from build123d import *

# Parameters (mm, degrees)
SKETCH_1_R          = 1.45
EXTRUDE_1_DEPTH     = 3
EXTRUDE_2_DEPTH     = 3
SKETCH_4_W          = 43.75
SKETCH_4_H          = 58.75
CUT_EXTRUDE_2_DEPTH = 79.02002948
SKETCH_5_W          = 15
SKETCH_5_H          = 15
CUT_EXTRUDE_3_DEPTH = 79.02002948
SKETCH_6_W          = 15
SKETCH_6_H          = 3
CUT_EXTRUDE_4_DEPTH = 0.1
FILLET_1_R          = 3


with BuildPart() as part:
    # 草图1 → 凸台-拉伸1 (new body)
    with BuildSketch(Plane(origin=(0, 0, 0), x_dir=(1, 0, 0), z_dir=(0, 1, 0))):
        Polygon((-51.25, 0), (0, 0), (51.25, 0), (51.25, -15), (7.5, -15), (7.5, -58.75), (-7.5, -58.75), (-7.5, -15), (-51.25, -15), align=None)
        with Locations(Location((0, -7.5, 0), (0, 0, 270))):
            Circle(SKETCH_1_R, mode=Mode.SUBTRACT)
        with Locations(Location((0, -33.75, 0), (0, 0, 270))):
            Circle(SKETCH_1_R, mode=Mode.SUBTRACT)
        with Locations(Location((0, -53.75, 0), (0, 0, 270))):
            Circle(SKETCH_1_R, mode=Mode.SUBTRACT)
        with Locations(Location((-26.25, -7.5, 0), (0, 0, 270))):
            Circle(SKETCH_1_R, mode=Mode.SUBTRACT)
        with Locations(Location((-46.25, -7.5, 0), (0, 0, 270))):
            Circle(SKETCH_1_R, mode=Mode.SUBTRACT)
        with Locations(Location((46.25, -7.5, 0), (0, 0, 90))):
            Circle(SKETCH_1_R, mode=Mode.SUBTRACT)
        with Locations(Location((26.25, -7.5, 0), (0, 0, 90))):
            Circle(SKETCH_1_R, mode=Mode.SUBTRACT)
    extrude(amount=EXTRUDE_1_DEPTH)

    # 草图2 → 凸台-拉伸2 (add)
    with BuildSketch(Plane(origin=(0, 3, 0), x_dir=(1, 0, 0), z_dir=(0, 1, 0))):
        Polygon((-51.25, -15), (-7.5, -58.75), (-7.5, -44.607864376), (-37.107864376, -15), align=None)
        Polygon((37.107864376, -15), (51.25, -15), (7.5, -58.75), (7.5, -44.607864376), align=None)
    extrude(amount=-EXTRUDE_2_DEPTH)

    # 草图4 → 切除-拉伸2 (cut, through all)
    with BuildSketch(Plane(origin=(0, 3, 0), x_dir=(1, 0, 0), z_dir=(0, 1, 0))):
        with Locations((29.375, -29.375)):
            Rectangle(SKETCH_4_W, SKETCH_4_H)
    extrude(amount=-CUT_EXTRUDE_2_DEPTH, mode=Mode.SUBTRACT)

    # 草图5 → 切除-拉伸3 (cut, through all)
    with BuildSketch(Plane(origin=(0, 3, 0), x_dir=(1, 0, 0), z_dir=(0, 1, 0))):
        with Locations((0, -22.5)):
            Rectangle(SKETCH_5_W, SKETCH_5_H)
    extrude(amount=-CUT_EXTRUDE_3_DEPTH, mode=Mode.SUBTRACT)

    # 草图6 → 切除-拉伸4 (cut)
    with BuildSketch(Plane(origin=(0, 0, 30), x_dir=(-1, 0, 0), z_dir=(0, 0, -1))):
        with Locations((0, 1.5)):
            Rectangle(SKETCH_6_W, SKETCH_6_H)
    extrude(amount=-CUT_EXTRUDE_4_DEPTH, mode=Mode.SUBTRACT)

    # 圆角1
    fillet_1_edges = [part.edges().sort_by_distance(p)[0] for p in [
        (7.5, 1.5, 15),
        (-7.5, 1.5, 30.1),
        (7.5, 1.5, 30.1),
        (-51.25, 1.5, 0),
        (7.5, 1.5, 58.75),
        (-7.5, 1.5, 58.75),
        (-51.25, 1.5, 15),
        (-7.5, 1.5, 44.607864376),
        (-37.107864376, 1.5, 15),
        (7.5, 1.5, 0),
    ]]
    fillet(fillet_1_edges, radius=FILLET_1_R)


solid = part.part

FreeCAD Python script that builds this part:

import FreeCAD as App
import Part
import Sketcher

V = App.Vector
Q = App.Units.Quantity


def edges_at(feature, points):
    """Names of the edges that pass closest to the given points."""
    edges = feature.Shape.Edges
    near = lambda p: min(range(len(edges)), key=lambda i: edges[i].distToShape(Part.Vertex(*p))[0])
    return sorted({f"Edge{near(p) + 1}" for p in points})


def add_polygon(sketch, points):
    """Adds a closed chain of lines whose ends are joined by coincident constraints."""
    first, n = sketch.GeometryCount, len(points)
    for a, b in zip(points, points[1:] + points[:1]):
        sketch.addGeometry(Part.LineSegment(App.Vector(*a, 0), App.Vector(*b, 0)), False)
    for i in range(n):
        sketch.addConstraint(Sketcher.Constraint("Coincident", first + i, 2, first + (i + 1) % n, 1))

doc = App.newDocument("Part")
body = doc.addObject("PartDesign::Body", "Body")

# Sketch on XZ plane
sketch1 = body.newObject("Sketcher::SketchObject", "Sketch")
sketch1.AttachmentSupport = (doc.getObject("XZ_Plane"), [""])
sketch1.MapMode = "FlatFace"
add_polygon(sketch1, [(51.2, 0), (-51.2, 0), (-51.2, 15), (-7.5, 15), (-7.5, 58.8), (7.5, 58.8), (7.5, 15), (51.2, 15)])  # lines 0-7
sketch1.addGeometry(Part.Circle(V(0, 53.8, 0), V(0, 0, 1), 1.4), False)  # 8
sketch1.addGeometry(Part.Circle(V(0, 33.8, 0), V(0, 0, 1), 1.4), False)  # 9
sketch1.addGeometry(Part.Circle(V(46.2, 7.5, 0), V(0, 0, 1), 1.4), False)  # 10
sketch1.addGeometry(Part.Circle(V(26.2, 7.5, 0), V(0, 0, 1), 1.4), False)  # 11
sketch1.addGeometry(Part.Circle(V(0, 7.5, 0), V(0, 0, 1), 1.4), False)  # 12
sketch1.addGeometry(Part.Circle(V(-26.2, 7.5, 0), V(0, 0, 1), 1.4), False)  # 13
sketch1.addGeometry(Part.Circle(V(-46.2, 7.5, 0), V(0, 0, 1), 1.4), False)  # 14
sketch1.addConstraint(Sketcher.Constraint("Horizontal", 0))
sketch1.addConstraint(Sketcher.Constraint("Vertical", 1))
sketch1.addConstraint(Sketcher.Constraint("Horizontal", 2))
sketch1.addConstraint(Sketcher.Constraint("Vertical", 3))
sketch1.addConstraint(Sketcher.Constraint("Horizontal", 4))
sketch1.addConstraint(Sketcher.Constraint("Vertical", 5))
sketch1.addConstraint(Sketcher.Constraint("Horizontal", 6))
sketch1.addConstraint(Sketcher.Constraint("Vertical", 7))
sketch1.addConstraint(Sketcher.Constraint("Equal", 8, 9))
sketch1.addConstraint(Sketcher.Constraint("Equal", 9, 10))
sketch1.addConstraint(Sketcher.Constraint("Equal", 10, 11))
sketch1.addConstraint(Sketcher.Constraint("Equal", 11, 12))
sketch1.addConstraint(Sketcher.Constraint("Equal", 12, 13))
sketch1.addConstraint(Sketcher.Constraint("Equal", 13, 14))
sketch1.addConstraint(Sketcher.Constraint("Symmetric", 0, 2, 7, 2, -1, 1))
sketch1.addConstraint(Sketcher.Constraint("Symmetric", 11, 3, 13, 3, -2))
sketch1.addConstraint(Sketcher.Constraint("Symmetric", 10, 3, 14, 3, -2))
sketch1.addConstraint(Sketcher.Constraint("Symmetric", 2, 2, 5, 2, -2))
sketch1.addConstraint(Sketcher.Constraint("PointOnObject", 8, 3, -2))
sketch1.addConstraint(Sketcher.Constraint("PointOnObject", 9, 3, -2))
sketch1.addConstraint(Sketcher.Constraint("PointOnObject", 12, 3, -2))
sketch1.addConstraint(Sketcher.Constraint("Horizontal", 10, 3, 11, 3))
sketch1.addConstraint(Sketcher.Constraint("Horizontal", 11, 3, 12, 3))
sketch1.addConstraint(Sketcher.Constraint("Equal", 4, 1))
sketch1.addConstraint(Sketcher.Constraint("Equal", 6, 3))
sketch1.addConstraint(Sketcher.Constraint("Diameter", 8, Q("2.9 mm")))
sketch1.addConstraint(Sketcher.Constraint("DistanceX", 4, 1, 4, 2, Q("15 mm")))
sketch1.addConstraint(Sketcher.Constraint("DistanceX", 0, 2, 0, 1, Q("102.5 mm")))
sketch1.addConstraint(Sketcher.Constraint("DistanceY", 9, 3, 8, 3, Q("20 mm")))
sketch1.addConstraint(Sketcher.Constraint("DistanceX", 11, 3, 10, 3, Q("20 mm")))
sketch1.addConstraint(Sketcher.Constraint("DistanceX", 0, 2, 14, 3, Q("5 mm")))
sketch1.addConstraint(Sketcher.Constraint("DistanceY", 8, 3, 3, 2, Q("5 mm")))
sketch1.addConstraint(Sketcher.Constraint("DistanceY", -1, 1, 10, 3, Q("7.5 mm")))
pad1 = body.newObject("PartDesign::Pad", "Pad")
pad1.Profile = sketch1
pad1.Length = 3
pad1.Reversed = True

# Sketch on XZ plane
sketch2 = body.newObject("Sketcher::SketchObject", "Sketch001")
sketch2.AttachmentSupport = (doc.getObject("XZ_Plane"), [""])
sketch2.MapMode = "FlatFace"
sketch2.AttachmentOffset = App.Placement(V(0, 0, -3), App.Rotation())
add_polygon(sketch2, [(-51, 15), (-8, 59), (-8, 45), (-37, 15)])  # lines 0-3
add_polygon(sketch2, [(51, 15), (37, 15), (8, 45), (8, 59)])  # lines 4-7
sketch2.addConstraint(Sketcher.Constraint("Vertical", 1))
sketch2.addConstraint(Sketcher.Constraint("Horizontal", 3))
sketch2.addConstraint(Sketcher.Constraint("Horizontal", 4))
sketch2.addConstraint(Sketcher.Constraint("Vertical", 6))
sketch2.addConstraint(Sketcher.Constraint("Symmetric", 2, 2, 4, 2, -2))
sketch2.addConstraint(Sketcher.Constraint("Symmetric", 1, 2, 5, 2, -2))
sketch2.addConstraint(Sketcher.Constraint("Parallel", 0, 2))
sketch2.addConstraint(Sketcher.Constraint("Perpendicular", 2, 5))
sketch2.addConstraint(Sketcher.Constraint("Parallel", 5, 7))
sketch2.addConstraint(Sketcher.Constraint("Horizontal", 0, 2, 6, 2))
sketch2.addConstraint(Sketcher.Constraint("DistanceY", -1, 1, 2, 2, Q("15 mm")))
sketch2.addConstraint(Sketcher.Constraint("DistanceX", 1, 2, 5, 2, Q("15 mm")))
sketch2.addConstraint(Sketcher.Constraint("DistanceY", -1, 1, 0, 2, Q("58.75 mm")))
sketch2.addConstraint(Sketcher.Constraint("DistanceX", 3, 2, 3, 1, Q("14.142136 mm")))
pad2 = body.newObject("PartDesign::Pad", "Pad001")
pad2.Profile = sketch2
pad2.Length = 3

# Sketch on XZ plane
sketch3 = body.newObject("Sketcher::SketchObject", "Sketch002")
sketch3.AttachmentSupport = (doc.getObject("XZ_Plane"), [""])
sketch3.MapMode = "FlatFace"
sketch3.AttachmentOffset = App.Placement(V(0, 0, -3), App.Rotation())
add_polygon(sketch3, [(8, 0), (8, 59), (51, 59), (51, 0)])  # lines 0-3
sketch3.addConstraint(Sketcher.Constraint("Vertical", 0))
sketch3.addConstraint(Sketcher.Constraint("Horizontal", 1))
sketch3.addConstraint(Sketcher.Constraint("Vertical", 2))
sketch3.addConstraint(Sketcher.Constraint("Horizontal", 3))
sketch3.addConstraint(Sketcher.Constraint("PointOnObject", 2, 2, -1))
sketch3.addConstraint(Sketcher.Constraint("DistanceX", 1, 1, 1, 2, Q("43.75 mm")))
sketch3.addConstraint(Sketcher.Constraint("DistanceY", 0, 1, 0, 2, Q("58.75 mm")))
sketch3.addConstraint(Sketcher.Constraint("DistanceX", -1, 1, 0, 2, Q("7.5 mm")))
pocket1 = body.newObject("PartDesign::Pocket", "Pocket")
pocket1.Profile = sketch3
pocket1.Type = "ThroughAll"
pocket1.Reversed = True

# Sketch on XZ plane
sketch4 = body.newObject("Sketcher::SketchObject", "Sketch003")
sketch4.AttachmentSupport = (doc.getObject("XZ_Plane"), [""])
sketch4.MapMode = "FlatFace"
sketch4.AttachmentOffset = App.Placement(V(0, 0, -3), App.Rotation())
add_polygon(sketch4, [(-8, 15), (-8, 30), (8, 30), (8, 15)])  # lines 0-3
sketch4.addConstraint(Sketcher.Constraint("Vertical", 0))
sketch4.addConstraint(Sketcher.Constraint("Horizontal", 1))
sketch4.addConstraint(Sketcher.Constraint("Vertical", 2))
sketch4.addConstraint(Sketcher.Constraint("Horizontal", 3))
sketch4.addConstraint(Sketcher.Constraint("Equal", 3, 0))
sketch4.addConstraint(Sketcher.Constraint("DistanceX", 1, 1, 1, 2, Q("15 mm")))
sketch4.addConstraint(Sketcher.Constraint("DistanceY", -1, 1, 0, 2, Q("30 mm")))
sketch4.addConstraint(Sketcher.Constraint("DistanceX", 0, 2, -1, 1, Q("7.5 mm")))
pocket2 = body.newObject("PartDesign::Pocket", "Pocket001")
pocket2.Profile = sketch4
pocket2.Type = "ThroughAll"
pocket2.Reversed = True

# Sketch on XY plane
sketch5 = body.newObject("Sketcher::SketchObject", "Sketch004")
sketch5.AttachmentSupport = (doc.getObject("XY_Plane"), [""])
sketch5.MapMode = "FlatFace"
sketch5.AttachmentOffset = App.Placement(V(0, 0, 30), App.Rotation())
add_polygon(sketch5, [(7.5, 3), (7.5, 0), (-7.5, 0), (-7.5, 3)])  # lines 0-3
sketch5.addConstraint(Sketcher.Constraint("Vertical", 0))
sketch5.addConstraint(Sketcher.Constraint("Horizontal", 1))
sketch5.addConstraint(Sketcher.Constraint("Vertical", 2))
sketch5.addConstraint(Sketcher.Constraint("Horizontal", 3))
sketch5.addConstraint(Sketcher.Constraint("Symmetric", 0, 2, 1, 2, -1, 1))
sketch5.addConstraint(Sketcher.Constraint("DistanceX", 1, 2, 1, 1, Q("15 mm")))
sketch5.addConstraint(Sketcher.Constraint("DistanceY", 0, 2, 0, 1, Q("3 mm")))
pocket3 = body.newObject("PartDesign::Pocket", "Pocket002")
pocket3.Profile = sketch5
pocket3.Length = 0.1
pocket3.Reversed = True
doc.recompute()

fillet = body.newObject("PartDesign::Fillet", "Fillet")
fillet.Base = (pocket3, edges_at(pocket3, [
    (7.5, 1.5, 15),
    (-7.5, 1.5, 30.1),
    (7.5, 1.5, 30.1),
    (-51.25, 1.5, 0),
    (7.5, 1.5, 58.75),
    (-7.5, 1.5, 58.75),
    (-51.25, 1.5, 15),
    (-7.5, 1.5, 44.608),
    (-37.108, 1.5, 15),
    (7.5, 1.5, 0),
]))
fillet.Radius = 3

doc.recompute()
